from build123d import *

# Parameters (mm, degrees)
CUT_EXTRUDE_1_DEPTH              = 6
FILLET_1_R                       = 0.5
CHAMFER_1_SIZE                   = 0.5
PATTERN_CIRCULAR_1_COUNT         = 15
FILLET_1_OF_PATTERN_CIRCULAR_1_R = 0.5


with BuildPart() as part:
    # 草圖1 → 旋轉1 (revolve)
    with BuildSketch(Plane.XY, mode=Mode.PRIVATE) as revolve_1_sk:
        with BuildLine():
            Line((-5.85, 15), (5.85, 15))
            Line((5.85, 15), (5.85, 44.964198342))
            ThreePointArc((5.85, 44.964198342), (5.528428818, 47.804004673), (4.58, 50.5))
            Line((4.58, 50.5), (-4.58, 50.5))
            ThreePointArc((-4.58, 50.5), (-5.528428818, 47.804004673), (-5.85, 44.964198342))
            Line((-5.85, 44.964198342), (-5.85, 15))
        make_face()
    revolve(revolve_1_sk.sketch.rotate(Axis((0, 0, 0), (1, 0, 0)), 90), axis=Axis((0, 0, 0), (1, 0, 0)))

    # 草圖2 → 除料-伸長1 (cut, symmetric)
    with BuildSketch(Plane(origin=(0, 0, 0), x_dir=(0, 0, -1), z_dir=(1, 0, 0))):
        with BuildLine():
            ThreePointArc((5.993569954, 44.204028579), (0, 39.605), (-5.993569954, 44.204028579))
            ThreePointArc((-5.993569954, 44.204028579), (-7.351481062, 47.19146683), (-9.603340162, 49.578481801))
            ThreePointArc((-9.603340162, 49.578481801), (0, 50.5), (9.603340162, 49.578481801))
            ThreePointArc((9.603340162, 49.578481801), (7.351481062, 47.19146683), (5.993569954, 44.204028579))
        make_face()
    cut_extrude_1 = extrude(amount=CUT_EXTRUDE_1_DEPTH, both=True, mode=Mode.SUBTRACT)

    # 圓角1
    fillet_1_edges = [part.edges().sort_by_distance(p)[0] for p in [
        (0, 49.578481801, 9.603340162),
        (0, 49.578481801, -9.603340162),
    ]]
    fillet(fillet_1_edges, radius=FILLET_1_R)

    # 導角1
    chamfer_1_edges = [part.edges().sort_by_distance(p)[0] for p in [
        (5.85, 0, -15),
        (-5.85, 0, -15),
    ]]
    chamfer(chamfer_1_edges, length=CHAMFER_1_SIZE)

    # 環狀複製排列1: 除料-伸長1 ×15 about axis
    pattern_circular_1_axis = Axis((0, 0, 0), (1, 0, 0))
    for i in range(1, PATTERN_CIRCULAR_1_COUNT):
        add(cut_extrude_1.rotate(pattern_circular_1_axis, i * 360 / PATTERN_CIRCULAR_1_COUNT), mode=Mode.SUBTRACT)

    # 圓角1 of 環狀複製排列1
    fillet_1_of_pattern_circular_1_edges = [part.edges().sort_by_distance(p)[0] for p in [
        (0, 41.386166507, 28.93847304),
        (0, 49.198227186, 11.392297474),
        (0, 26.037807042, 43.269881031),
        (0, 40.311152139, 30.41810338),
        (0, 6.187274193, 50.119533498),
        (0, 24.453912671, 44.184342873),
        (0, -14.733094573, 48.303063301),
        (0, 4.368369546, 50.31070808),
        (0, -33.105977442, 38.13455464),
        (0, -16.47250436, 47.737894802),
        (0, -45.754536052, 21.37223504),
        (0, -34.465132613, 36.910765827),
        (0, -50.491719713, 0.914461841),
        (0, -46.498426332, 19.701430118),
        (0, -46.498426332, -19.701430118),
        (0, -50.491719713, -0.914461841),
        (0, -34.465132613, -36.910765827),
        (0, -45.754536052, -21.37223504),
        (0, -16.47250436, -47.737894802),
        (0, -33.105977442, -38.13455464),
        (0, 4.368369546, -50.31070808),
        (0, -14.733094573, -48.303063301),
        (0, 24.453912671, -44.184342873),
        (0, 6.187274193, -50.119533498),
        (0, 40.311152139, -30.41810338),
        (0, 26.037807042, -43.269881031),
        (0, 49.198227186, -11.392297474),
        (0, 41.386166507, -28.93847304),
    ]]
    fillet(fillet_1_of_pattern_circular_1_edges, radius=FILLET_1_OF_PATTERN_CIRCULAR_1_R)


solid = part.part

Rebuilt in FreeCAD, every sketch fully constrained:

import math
import FreeCAD as App
import Part
import Sketcher
from FreeCAD import Vector
Q = App.Units.Quantity


def edges_at(feature, points):
    """Names of the edges that pass closest to the given points."""
    edges = feature.Shape.Edges
    near = lambda p: min(range(len(edges)), key=lambda i: edges[i].distToShape(Part.Vertex(*p))[0])
    return sorted({f"Edge{near(p) + 1}" for p in points})

doc = App.newDocument("Part")
body = doc.addObject("PartDesign::Body", "Body")

# Sketch on XY plane
sketch1 = doc.addObject("Sketcher::SketchObject", "Sketch")
body.addObject(sketch1)
sketch1.AttachmentSupport = (doc.XY_Plane, [""])
sketch1.MapMode = "FlatFace"
sketch1.addGeometry([
    Part.LineSegment(Vector(-6, 15, 0), Vector(6, 15, 0)),  # 0
    Part.LineSegment(Vector(6, 15, 0), Vector(6, 45, 0)),  # 1
    Part.ArcOfCircle(Part.Circle(Vector(-7, 45, 0), Vector(0, 0, 1), 13), math.radians(0), math.radians(26)),  # 2
    Part.LineSegment(Vector(5, 50, 0), Vector(-5, 50, 0)),  # 3
    Part.ArcOfCircle(Part.Circle(Vector(7, 45, 0), Vector(0, 0, 1), 13), math.radians(154), math.radians(180)),  # 4
    Part.LineSegment(Vector(-6, 45, 0), Vector(-6, 15, 0)),  # 5
], False)
sketch1.addConstraint([
    Sketcher.Constraint("Coincident", 0, 2, 1, 1),
    Sketcher.Constraint("Tangent", 1, 2, 2, 1),
    Sketcher.Constraint("Coincident", 2, 2, 3, 1),
    Sketcher.Constraint("Coincident", 3, 2, 4, 1),
    Sketcher.Constraint("Tangent", 4, 2, 5, 1),
    Sketcher.Constraint("Coincident", 5, 2, 0, 1),
    Sketcher.Constraint("Horizontal", 0),
    Sketcher.Constraint("Vertical", 1),
    Sketcher.Constraint("Horizontal", 3),
    Sketcher.Constraint("Vertical", 5),
    Sketcher.Constraint("Equal", 2, 4),
    Sketcher.Constraint("Symmetric", 2, 3, 4, 3, -2),
    Sketcher.Constraint("Radius", 2, Q("12.7 mm")),
    Sketcher.Constraint("DistanceX", 0, 1, 0, 2, Q("11.7 mm")),
    Sketcher.Constraint("DistanceY", -1, 1, 0, 2, Q("15 mm")),
    Sketcher.Constraint("DistanceX", 3, 2, 3, 1, Q("9.16 mm")),
    Sketcher.Constraint("DistanceY", -1, 1, 2, 2, Q("50.5 mm")),
])
revolution = doc.addObject("PartDesign::Revolution", "Revolution")
body.addObject(revolution)
revolution.Profile = sketch1
revolution.ReferenceAxis = (sketch1, ["H_Axis"])
revolution.Angle = 360

# Sketch on YZ plane
sketch2 = doc.addObject("Sketcher::SketchObject", "Sketch001")
body.addObject(sketch2)
sketch2.AttachmentSupport = (doc.YZ_Plane, [""])
sketch2.MapMode = "FlatFace"
sketch2.addGeometry([
    Part.ArcOfCircle(Part.Circle(Vector(46, 0, 0), Vector(0, 0, 1), 6), math.radians(105), math.radians(255)),
    Part.ArcOfCircle(Part.Circle(Vector(42, -16, 0), Vector(0, 0, 1), 10), math.radians(37), math.radians(75)),
    Part.ArcOfCircle(Part.Circle(Vector(0, 0, 0), Vector(0, 0, 1), 50), math.radians(-11), math.radians(11)),
    Part.ArcOfCircle(Part.Circle(Vector(42, 16, 0), Vector(0, 0, 1), 10), math.radians(-75), math.radians(-37)),
], False)
sketch2.addConstraint([
    Sketcher.Constraint("Tangent", 0, 2, 1, 2),
    Sketcher.Constraint("Coincident", 1, 1, 2, 1),
    Sketcher.Constraint("Coincident", 2, 2, 3, 2),
    Sketcher.Constraint("Tangent", 3, 1, 0, 1),
    Sketcher.Constraint("Coincident", 2, 3, -1, 1),
    Sketcher.Constraint("Equal", 1, 3),
    Sketcher.Constraint("Symmetric", 1, 3, 3, 3, -1),
    Sketcher.Constraint("Radius", 1, Q("10 mm")),
    Sketcher.Constraint("Radius", 2, Q("50.5 mm")),
    Sketcher.Constraint("Radius", 0, Q("6.205 mm")),
    Sketcher.Constraint("DistanceX", -1, 1, 0, 3, Q("45.81 mm")),
    Sketcher.Constraint("DistanceY", 0, 2, 3, 3, Q("21.646398 mm")),
])
pocket1 = doc.addObject("PartDesign::Pocket", "Pocket")
body.addObject(pocket1)
pocket1.Profile = sketch2
pocket1.Length = 12
pocket1.Midplane = True
doc.recompute()

fillet = doc.addObject("PartDesign::Fillet", "Fillet")
body.addObject(fillet)
fillet.Base = (pocket1, edges_at(pocket1, [(0, 49.578, 9.603), (0, 49.578, -9.603)]))
fillet.Radius = 0.5
doc.recompute()

chamfer = doc.addObject("PartDesign::Chamfer", "Chamfer")
body.addObject(chamfer)
chamfer.Base = (fillet, edges_at(fillet, [(5.85, 0, -15), (-5.85, 0, -15)]))
chamfer.Size = 0.5
doc.recompute()

polarpattern = doc.addObject("PartDesign::PolarPattern", "PolarPattern")
body.addObject(polarpattern)
polarpattern.Originals = [pocket1]
polarpattern.Axis = (doc.X_Axis, [""])
polarpattern.Angle = 360
polarpattern.Occurrences = 15
body.Tip = polarpattern
doc.recompute()

fillet2 = doc.addObject("PartDesign::Fillet", "Fillet001")
body.addObject(fillet2)
fillet2.Base = (polarpattern, edges_at(polarpattern, [
    (0, 41.386, 28.938),
    (0, 49.198, 11.392),
    (0, 26.038, 43.27),
    (0, 40.311, 30.418),
    (0, 6.187, 50.12),
    (0, 24.454, 44.184),
    (0, -14.733, 48.303),
    (0, 4.368, 50.311),
    (0, -33.106, 38.135),
    (0, -16.473, 47.738),
    (0, -45.755, 21.372),
    (0, -34.465, 36.911),
    (0, -50.492, 0.914),
    (0, -46.498, 19.701),
    (0, -46.498, -19.701),
    (0, -50.492, -0.914),
    (0, -34.465, -36.911),
    (0, -45.755, -21.372),
    (0, -16.473, -47.738),
    (0, -33.106, -38.135),
    (0, 4.368, -50.311),
    (0, -14.733, -48.303),
    (0, 24.454, -44.184),
    (0, 6.187, -50.12),
    (0, 40.311, -30.418),
    (0, 26.038, -43.27),
    (0, 49.198, -11.392),
    (0, 41.386, -28.938),
]))
fillet2.Radius = 0.5

doc.recompute()
